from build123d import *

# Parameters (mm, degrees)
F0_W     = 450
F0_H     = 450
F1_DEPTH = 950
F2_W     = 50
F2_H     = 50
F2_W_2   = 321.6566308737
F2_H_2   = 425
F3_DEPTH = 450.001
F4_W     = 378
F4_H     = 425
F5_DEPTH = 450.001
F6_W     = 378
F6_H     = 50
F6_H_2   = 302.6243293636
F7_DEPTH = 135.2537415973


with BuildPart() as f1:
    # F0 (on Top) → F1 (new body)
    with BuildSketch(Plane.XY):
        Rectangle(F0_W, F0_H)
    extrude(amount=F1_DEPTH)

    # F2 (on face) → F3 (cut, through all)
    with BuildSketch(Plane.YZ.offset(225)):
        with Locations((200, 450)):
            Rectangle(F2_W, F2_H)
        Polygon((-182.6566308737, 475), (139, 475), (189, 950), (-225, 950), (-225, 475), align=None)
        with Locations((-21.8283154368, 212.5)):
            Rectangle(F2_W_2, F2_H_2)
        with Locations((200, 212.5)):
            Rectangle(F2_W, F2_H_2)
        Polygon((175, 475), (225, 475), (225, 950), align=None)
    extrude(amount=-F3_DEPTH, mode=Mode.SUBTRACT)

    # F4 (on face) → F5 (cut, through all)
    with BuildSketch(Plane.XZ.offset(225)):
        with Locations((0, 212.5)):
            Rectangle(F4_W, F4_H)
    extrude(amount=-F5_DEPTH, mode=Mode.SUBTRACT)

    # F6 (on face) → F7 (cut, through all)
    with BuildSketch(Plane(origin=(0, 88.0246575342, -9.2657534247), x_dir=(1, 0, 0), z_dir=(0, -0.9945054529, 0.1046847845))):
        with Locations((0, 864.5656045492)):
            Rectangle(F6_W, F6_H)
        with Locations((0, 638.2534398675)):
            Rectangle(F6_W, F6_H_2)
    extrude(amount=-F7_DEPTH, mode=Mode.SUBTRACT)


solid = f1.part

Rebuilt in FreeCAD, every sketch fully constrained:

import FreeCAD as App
import Part
import Sketcher

doc = App.newDocument("Part")
body = doc.addObject("PartDesign::Body", "Body")

# Sketch on XY plane
sketch1 = body.newObject("Sketcher::SketchObject", "Sketch")
sketch1.AttachmentSupport = (doc.getObject("XY_Plane"), [""])
sketch1.MapMode = "FlatFace"
sketch1.addGeometry([
    Part.LineSegment(App.Vector(-225, 225, 0), App.Vector(-225, -225, 0)),
    Part.LineSegment(App.Vector(-225, -225, 0), App.Vector(225, -225, 0)),
    Part.LineSegment(App.Vector(225, -225, 0), App.Vector(225, 225, 0)),
    Part.LineSegment(App.Vector(225, 225, 0), App.Vector(-225, 225, 0)),
], False)
sketch1.addConstraint([
    Sketcher.Constraint("Coincident", 0, 2, 1, 1),
    Sketcher.Constraint("Coincident", 1, 2, 2, 1),
    Sketcher.Constraint("Coincident", 2, 2, 3, 1),
    Sketcher.Constraint("Coincident", 3, 2, 0, 1),
    Sketcher.Constraint("Vertical", 0),
    Sketcher.Constraint("Horizontal", 1),
    Sketcher.Constraint("Vertical", 2),
    Sketcher.Constraint("Horizontal", 3),
    Sketcher.Constraint("Symmetric", 0, 2, 2, 2, -1, 1),
    Sketcher.Constraint("Equal", 3, 0),
    Sketcher.Constraint("DistanceX", 1, 1, 1, 2, 450.0),
])
pad1 = body.newObject("PartDesign::Pad", "Pad")
pad1.Profile = sketch1
pad1.Length = 950

# Sketch on YZ plane
sketch2 = body.newObject("Sketcher::SketchObject", "Sketch001")
sketch2.AttachmentSupport = (doc.getObject("YZ_Plane"), [""])
sketch2.MapMode = "FlatFace"
sketch2.AttachmentOffset = App.Placement(App.Vector(0, 0, 225), App.Rotation())
sketch2.addGeometry([
    Part.LineSegment(App.Vector(175, 475, 0), App.Vector(175, 0, 0)),  # 0
    Part.LineSegment(App.Vector(175, 0, 0), App.Vector(225, 0, 0)),  # 1
    Part.LineSegment(App.Vector(225, 0, 0), App.Vector(225, 950, 0)),  # 2
    Part.LineSegment(App.Vector(225, 950, 0), App.Vector(175, 475, 0)),  # 3
    Part.LineSegment(App.Vector(139, 475, 0), App.Vector(189, 950, 0)),  # 4
    Part.LineSegment(App.Vector(189, 950, 0), App.Vector(-225, 950, 0)),  # 5
    Part.LineSegment(App.Vector(-225, 950, 0), App.Vector(-225, 475, 0)),  # 6
    Part.LineSegment(App.Vector(-225, 475, 0), App.Vector(139, 475, 0)),  # 7
    Part.LineSegment(App.Vector(-183, 425, 0), App.Vector(-183, 0, 0)),  # 8
    Part.LineSegment(App.Vector(-183, 0, 0), App.Vector(139, 0, 0)),  # 9
    Part.LineSegment(App.Vector(139, 0, 0), App.Vector(139, 425, 0)),  # 10
    Part.LineSegment(App.Vector(139, 425, 0), App.Vector(-183, 425, 0)),  # 11
], False)
sketch2.addConstraint([
    Sketcher.Constraint("Coincident", 0, 2, 1, 1),
    Sketcher.Constraint("Coincident", 1, 2, 2, 1),
    Sketcher.Constraint("Coincident", 2, 2, 3, 1),
    Sketcher.Constraint("Coincident", 3, 2, 0, 1),
    Sketcher.Constraint("Coincident", 4, 2, 5, 1),
    Sketcher.Constraint("Coincident", 5, 2, 6, 1),
    Sketcher.Constraint("Coincident", 6, 2, 7, 1),
    Sketcher.Constraint("Coincident", 7, 2, 4, 1),
    Sketcher.Constraint("Coincident", 8, 2, 9, 1),
    Sketcher.Constraint("Coincident", 9, 2, 10, 1),
    Sketcher.Constraint("Coincident", 10, 2, 11, 1),
    Sketcher.Constraint("Coincident", 11, 2, 8, 1),
    Sketcher.Constraint("Vertical", 0),
    Sketcher.Constraint("Horizontal", 1),
    Sketcher.Constraint("Vertical", 2),
    Sketcher.Constraint("Horizontal", 5),
    Sketcher.Constraint("Vertical", 6),
    Sketcher.Constraint("Horizontal", 7),
    Sketcher.Constraint("Vertical", 8),
    Sketcher.Constraint("Horizontal", 9),
    Sketcher.Constraint("Vertical", 10),
    Sketcher.Constraint("Horizontal", 11),
    Sketcher.Constraint("Symmetric", 2, 2, 5, 2, -2),
    Sketcher.Constraint("PointOnObject", 0, 2, -1),
    Sketcher.Constraint("PointOnObject", 8, 2, -1),
    Sketcher.Constraint("Parallel", 3, 4),
    Sketcher.Constraint("Horizontal", 3, 2, 6, 2),
    Sketcher.Constraint("Vertical", 7, 2, 9, 2),
    Sketcher.Constraint("Equal", 0, 6),
    Sketcher.Constraint("DistanceX", 1, 1, 1, 2, 50.0),
    Sketcher.Constraint("DistanceX", 5, 2, 5, 1, 414.0),
    Sketcher.Constraint("DistanceY", 0, 2, 0, 1, 475.0),
    Sketcher.Constraint("DistanceY", 8, 2, 8, 1, 425.0),
    Sketcher.Constraint("DistanceX", -1, 1, 0, 2, 175.0),
    Sketcher.Constraint("DistanceX", 9, 1, 9, 2, 321.656631),
])
pocket1 = body.newObject("PartDesign::Pocket", "Pocket")
pocket1.Profile = sketch2
pocket1.Type = "ThroughAll"

# Sketch on XZ plane
sketch3 = body.newObject("Sketcher::SketchObject", "Sketch002")
sketch3.AttachmentSupport = (doc.getObject("XZ_Plane"), [""])
sketch3.MapMode = "FlatFace"
sketch3.AttachmentOffset = App.Placement(App.Vector(0, 0, 225), App.Rotation())
sketch3.addGeometry([
    Part.LineSegment(App.Vector(-189, 425, 0), App.Vector(-189, 0, 0)),
    Part.LineSegment(App.Vector(-189, 0, 0), App.Vector(189, 0, 0)),
    Part.LineSegment(App.Vector(189, 0, 0), App.Vector(189, 425, 0)),
    Part.LineSegment(App.Vector(189, 425, 0), App.Vector(-189, 425, 0)),
], False)
sketch3.addConstraint([
    Sketcher.Constraint("Coincident", 0, 2, 1, 1),
    Sketcher.Constraint("Coincident", 1, 2, 2, 1),
    Sketcher.Constraint("Coincident", 2, 2, 3, 1),
    Sketcher.Constraint("Coincident", 3, 2, 0, 1),
    Sketcher.Constraint("Vertical", 0),
    Sketcher.Constraint("Horizontal", 1),
    Sketcher.Constraint("Vertical", 2),
    Sketcher.Constraint("Horizontal", 3),
    Sketcher.Constraint("Symmetric", 0, 2, 1, 2, -1, 1),
    Sketcher.Constraint("DistanceX", 1, 1, 1, 2, 378.0),
    Sketcher.Constraint("DistanceY", 0, 2, 0, 1, 425.0),
])
pocket2 = body.newObject("PartDesign::Pocket", "Pocket001")
pocket2.Profile = sketch3
pocket2.Type = "ThroughAll"

# Sketch on an angled plane
sketch4 = body.newObject("Sketcher::SketchObject", "Sketch003")
sketch4.Placement = App.Placement(App.Vector(0, 88.024658, -9.265753), App.Rotation(App.Vector(1, 0, 0), App.Vector(0, 0.104684785, 0.994505453), App.Vector(0, -0.994505453, 0.104684785), "ZXY"))
sketch4.addGeometry([
    Part.LineSegment(App.Vector(-189, 890, 0), App.Vector(-189, 840, 0)),  # 0
    Part.LineSegment(App.Vector(-189, 840, 0), App.Vector(189, 840, 0)),  # 1
    Part.LineSegment(App.Vector(189, 840, 0), App.Vector(189, 890, 0)),  # 2
    Part.LineSegment(App.Vector(189, 890, 0), App.Vector(-189, 890, 0)),  # 3
    Part.LineSegment(App.Vector(-189, 790, 0), App.Vector(-189, 487, 0)),  # 4
    Part.LineSegment(App.Vector(-189, 487, 0), App.Vector(189, 487, 0)),  # 5
    Part.LineSegment(App.Vector(189, 487, 0), App.Vector(189, 790, 0)),  # 6
    Part.LineSegment(App.Vector(189, 790, 0), App.Vector(-189, 790, 0)),  # 7
], False)
sketch4.addConstraint([
    Sketcher.Constraint("Coincident", 0, 2, 1, 1),
    Sketcher.Constraint("Coincident", 1, 2, 2, 1),
    Sketcher.Constraint("Coincident", 2, 2, 3, 1),
    Sketcher.Constraint("Coincident", 3, 2, 0, 1),
    Sketcher.Constraint("Coincident", 4, 2, 5, 1),
    Sketcher.Constraint("Coincident", 5, 2, 6, 1),
    Sketcher.Constraint("Coincident", 6, 2, 7, 1),
    Sketcher.Constraint("Coincident", 7, 2, 4, 1),
    Sketcher.Constraint("Vertical", 0),
    Sketcher.Constraint("Horizontal", 1),
    Sketcher.Constraint("Vertical", 2),
    Sketcher.Constraint("Horizontal", 3),
    Sketcher.Constraint("Vertical", 4),
    Sketcher.Constraint("Horizontal", 5),
    Sketcher.Constraint("Vertical", 6),
    Sketcher.Constraint("Horizontal", 7),
    Sketcher.Constraint("Vertical", 3, 2, 4, 2),
    Sketcher.Constraint("Vertical", 2, 2, 5, 2),
    Sketcher.Constraint("DistanceX", 1, 1, 1, 2, 378.0),
    Sketcher.Constraint("DistanceY", 0, 2, 0, 1, 50.0),
    Sketcher.Constraint("DistanceX", 0, 2, -1, 1, 189.0),
    Sketcher.Constraint("DistanceY", 6, 2, 1, 2, 50.0),
    Sketcher.Constraint("DistanceY", 4, 2, 4, 1, 302.624329),
    Sketcher.Constraint("DistanceY", -1, 1, 0, 2, 839.565605),
])
pocket3 = body.newObject("PartDesign::Pocket", "Pocket002")
pocket3.Profile = sketch4
pocket3.Type = "ThroughAll"

doc.recompute()
